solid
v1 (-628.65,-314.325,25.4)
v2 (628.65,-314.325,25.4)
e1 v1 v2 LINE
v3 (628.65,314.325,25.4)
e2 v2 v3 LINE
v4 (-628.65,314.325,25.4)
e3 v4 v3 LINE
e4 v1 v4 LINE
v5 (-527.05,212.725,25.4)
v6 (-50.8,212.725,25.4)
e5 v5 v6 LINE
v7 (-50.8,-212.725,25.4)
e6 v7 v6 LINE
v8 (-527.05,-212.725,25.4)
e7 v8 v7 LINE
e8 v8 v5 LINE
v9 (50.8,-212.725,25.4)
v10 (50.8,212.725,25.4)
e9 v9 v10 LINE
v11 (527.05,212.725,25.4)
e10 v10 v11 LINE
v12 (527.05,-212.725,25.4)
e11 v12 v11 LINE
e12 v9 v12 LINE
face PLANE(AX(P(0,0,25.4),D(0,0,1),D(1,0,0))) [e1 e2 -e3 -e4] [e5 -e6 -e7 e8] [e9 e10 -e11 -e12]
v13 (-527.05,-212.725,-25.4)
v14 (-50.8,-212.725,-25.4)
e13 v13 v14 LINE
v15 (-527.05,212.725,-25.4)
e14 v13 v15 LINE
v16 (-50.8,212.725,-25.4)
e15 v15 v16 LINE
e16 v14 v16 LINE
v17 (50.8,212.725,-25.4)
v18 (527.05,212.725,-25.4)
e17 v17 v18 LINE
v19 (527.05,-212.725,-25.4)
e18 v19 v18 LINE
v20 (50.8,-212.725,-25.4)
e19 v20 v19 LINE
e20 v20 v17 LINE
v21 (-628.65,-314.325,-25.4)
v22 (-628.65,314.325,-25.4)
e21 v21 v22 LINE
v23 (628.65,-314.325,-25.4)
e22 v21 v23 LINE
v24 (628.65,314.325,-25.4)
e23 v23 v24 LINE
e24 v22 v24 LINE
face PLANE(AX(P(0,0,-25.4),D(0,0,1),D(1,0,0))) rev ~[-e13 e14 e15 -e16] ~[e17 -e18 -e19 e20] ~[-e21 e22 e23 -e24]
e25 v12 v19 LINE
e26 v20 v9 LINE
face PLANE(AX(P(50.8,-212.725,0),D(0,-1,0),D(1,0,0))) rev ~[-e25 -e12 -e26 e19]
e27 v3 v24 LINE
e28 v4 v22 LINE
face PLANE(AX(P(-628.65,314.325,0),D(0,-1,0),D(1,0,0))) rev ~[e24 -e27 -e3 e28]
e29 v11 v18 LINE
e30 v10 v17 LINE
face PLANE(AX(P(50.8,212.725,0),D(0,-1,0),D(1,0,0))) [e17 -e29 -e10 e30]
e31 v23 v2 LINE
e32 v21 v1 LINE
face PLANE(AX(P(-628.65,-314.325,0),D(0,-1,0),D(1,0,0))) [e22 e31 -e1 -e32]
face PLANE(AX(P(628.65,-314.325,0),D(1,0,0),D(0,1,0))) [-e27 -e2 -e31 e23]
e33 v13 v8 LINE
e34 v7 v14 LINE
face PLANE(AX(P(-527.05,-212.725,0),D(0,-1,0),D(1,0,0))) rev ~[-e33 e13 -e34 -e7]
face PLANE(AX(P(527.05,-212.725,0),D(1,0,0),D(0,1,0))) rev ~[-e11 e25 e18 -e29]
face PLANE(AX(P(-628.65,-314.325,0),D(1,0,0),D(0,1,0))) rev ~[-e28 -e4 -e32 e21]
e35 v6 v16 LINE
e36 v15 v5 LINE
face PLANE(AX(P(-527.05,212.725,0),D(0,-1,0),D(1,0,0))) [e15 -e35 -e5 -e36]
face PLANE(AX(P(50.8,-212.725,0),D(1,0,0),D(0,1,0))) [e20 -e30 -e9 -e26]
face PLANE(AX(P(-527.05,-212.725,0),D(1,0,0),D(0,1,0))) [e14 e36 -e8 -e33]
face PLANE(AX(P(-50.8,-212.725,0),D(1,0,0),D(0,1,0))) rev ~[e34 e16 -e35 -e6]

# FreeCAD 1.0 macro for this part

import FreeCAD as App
import Part
import Sketcher
Q = App.Units.Quantity

doc = App.newDocument("Part")
body = doc.addObject("PartDesign::Body", "Body")

sketch1 = doc.addObject("Sketcher::SketchObject", "Sketch")
body.addObject(sketch1)
sketch1.AttachmentSupport = (doc.XY_Plane, [""])
sketch1.MapMode = "FlatFace"
sketch1.addGeometry(Part.LineSegment(App.Vector(-629, 314, 0), App.Vector(-629, -314, 0)), False)
sketch1.addGeometry(Part.LineSegment(App.Vector(-629, -314, 0), App.Vector(629, -314, 0)), False)
sketch1.addGeometry(Part.LineSegment(App.Vector(629, -314, 0), App.Vector(629, 314, 0)), False)
sketch1.addGeometry(Part.LineSegment(App.Vector(629, 314, 0), App.Vector(-629, 314, 0)), False)
sketch1.addGeometry(Part.LineSegment(App.Vector(-51, -213, 0), App.Vector(-527, -213, 0)), False)
sketch1.addGeometry(Part.LineSegment(App.Vector(-527, -213, 0), App.Vector(-527, 213, 0)), False)
sketch1.addGeometry(Part.LineSegment(App.Vector(-527, 213, 0), App.Vector(-51, 213, 0)), False)
sketch1.addGeometry(Part.LineSegment(App.Vector(-51, 213, 0), App.Vector(-51, -213, 0)), False)
sketch1.addGeometry(Part.LineSegment(App.Vector(527, -213, 0), App.Vector(51, -213, 0)), False)
sketch1.addGeometry(Part.LineSegment(App.Vector(51, -213, 0), App.Vector(51, 213, 0)), False)
sketch1.addGeometry(Part.LineSegment(App.Vector(51, 213, 0), App.Vector(527, 213, 0)), False)
sketch1.addGeometry(Part.LineSegment(App.Vector(527, 213, 0), App.Vector(527, -213, 0)), False)
sketch1.addConstraint(Sketcher.Constraint("Coincident", 0, 2, 1, 1))
sketch1.addConstraint(Sketcher.Constraint("Coincident", 1, 2, 2, 1))
sketch1.addConstraint(Sketcher.Constraint("Coincident", 2, 2, 3, 1))
sketch1.addConstraint(Sketcher.Constraint("Coincident", 3, 2, 0, 1))
sketch1.addConstraint(Sketcher.Constraint("Coincident", 4, 2, 5, 1))
sketch1.addConstraint(Sketcher.Constraint("Coincident", 5, 2, 6, 1))
sketch1.addConstraint(Sketcher.Constraint("Coincident", 6, 2, 7, 1))
sketch1.addConstraint(Sketcher.Constraint("Coincident", 7, 2, 4, 1))
sketch1.addConstraint(Sketcher.Constraint("Coincident", 8, 2, 9, 1))
sketch1.addConstraint(Sketcher.Constraint("Coincident", 9, 2, 10, 1))
sketch1.addConstraint(Sketcher.Constraint("Coincident", 10, 2, 11, 1))
sketch1.addConstraint(Sketcher.Constraint("Coincident", 11, 2, 8, 1))
sketch1.addConstraint(Sketcher.Constraint("Vertical", 0))
sketch1.addConstraint(Sketcher.Constraint("Horizontal", 1))
sketch1.addConstraint(Sketcher.Constraint("Vertical", 2))
sketch1.addConstraint(Sketcher.Constraint("Horizontal", 3))
sketch1.addConstraint(Sketcher.Constraint("Horizontal", 4))
sketch1.addConstraint(Sketcher.Constraint("Vertical", 5))
sketch1.addConstraint(Sketcher.Constraint("Horizontal", 6))
sketch1.addConstraint(Sketcher.Constraint("Vertical", 7))
sketch1.addConstraint(Sketcher.Constraint("Horizontal", 8))
sketch1.addConstraint(Sketcher.Constraint("Vertical", 9))
sketch1.addConstraint(Sketcher.Constraint("Horizontal", 10))
sketch1.addConstraint(Sketcher.Constraint("Vertical", 11))
sketch1.addConstraint(Sketcher.Constraint("Symmetric", 0, 2, 2, 2, -1, 1))
sketch1.addConstraint(Sketcher.Constraint("Symmetric", 6, 2, 8, 2, -1, 1))
sketch1.addConstraint(Sketcher.Constraint("Symmetric", 4, 2, 10, 2, -1, 1))
sketch1.addConstraint(Sketcher.Constraint("Horizontal", 7, 2, 8, 2))
sketch1.addConstraint(Sketcher.Constraint("DistanceX", 1, 1, 1, 2, Q("49.5 in")))
sketch1.addConstraint(Sketcher.Constraint("DistanceX", 6, 2, -1, 1, Q("2 in")))
sketch1.addConstraint(Sketcher.Constraint("DistanceX", 0, 2, 4, 2, Q("4 in")))
sketch1.addConstraint(Sketcher.Constraint("DistanceY", 0, 2, 4, 2, Q("4 in")))
sketch1.addConstraint(Sketcher.Constraint("DistanceY", 0, 2, 0, 1, Q("24.75 in")))
pad1 = doc.addObject("PartDesign::Pad", "Pad")
body.addObject(pad1)
pad1.Profile = sketch1
pad1.Length = Q("2 in")
pad1.Midplane = True

doc.recompute()
